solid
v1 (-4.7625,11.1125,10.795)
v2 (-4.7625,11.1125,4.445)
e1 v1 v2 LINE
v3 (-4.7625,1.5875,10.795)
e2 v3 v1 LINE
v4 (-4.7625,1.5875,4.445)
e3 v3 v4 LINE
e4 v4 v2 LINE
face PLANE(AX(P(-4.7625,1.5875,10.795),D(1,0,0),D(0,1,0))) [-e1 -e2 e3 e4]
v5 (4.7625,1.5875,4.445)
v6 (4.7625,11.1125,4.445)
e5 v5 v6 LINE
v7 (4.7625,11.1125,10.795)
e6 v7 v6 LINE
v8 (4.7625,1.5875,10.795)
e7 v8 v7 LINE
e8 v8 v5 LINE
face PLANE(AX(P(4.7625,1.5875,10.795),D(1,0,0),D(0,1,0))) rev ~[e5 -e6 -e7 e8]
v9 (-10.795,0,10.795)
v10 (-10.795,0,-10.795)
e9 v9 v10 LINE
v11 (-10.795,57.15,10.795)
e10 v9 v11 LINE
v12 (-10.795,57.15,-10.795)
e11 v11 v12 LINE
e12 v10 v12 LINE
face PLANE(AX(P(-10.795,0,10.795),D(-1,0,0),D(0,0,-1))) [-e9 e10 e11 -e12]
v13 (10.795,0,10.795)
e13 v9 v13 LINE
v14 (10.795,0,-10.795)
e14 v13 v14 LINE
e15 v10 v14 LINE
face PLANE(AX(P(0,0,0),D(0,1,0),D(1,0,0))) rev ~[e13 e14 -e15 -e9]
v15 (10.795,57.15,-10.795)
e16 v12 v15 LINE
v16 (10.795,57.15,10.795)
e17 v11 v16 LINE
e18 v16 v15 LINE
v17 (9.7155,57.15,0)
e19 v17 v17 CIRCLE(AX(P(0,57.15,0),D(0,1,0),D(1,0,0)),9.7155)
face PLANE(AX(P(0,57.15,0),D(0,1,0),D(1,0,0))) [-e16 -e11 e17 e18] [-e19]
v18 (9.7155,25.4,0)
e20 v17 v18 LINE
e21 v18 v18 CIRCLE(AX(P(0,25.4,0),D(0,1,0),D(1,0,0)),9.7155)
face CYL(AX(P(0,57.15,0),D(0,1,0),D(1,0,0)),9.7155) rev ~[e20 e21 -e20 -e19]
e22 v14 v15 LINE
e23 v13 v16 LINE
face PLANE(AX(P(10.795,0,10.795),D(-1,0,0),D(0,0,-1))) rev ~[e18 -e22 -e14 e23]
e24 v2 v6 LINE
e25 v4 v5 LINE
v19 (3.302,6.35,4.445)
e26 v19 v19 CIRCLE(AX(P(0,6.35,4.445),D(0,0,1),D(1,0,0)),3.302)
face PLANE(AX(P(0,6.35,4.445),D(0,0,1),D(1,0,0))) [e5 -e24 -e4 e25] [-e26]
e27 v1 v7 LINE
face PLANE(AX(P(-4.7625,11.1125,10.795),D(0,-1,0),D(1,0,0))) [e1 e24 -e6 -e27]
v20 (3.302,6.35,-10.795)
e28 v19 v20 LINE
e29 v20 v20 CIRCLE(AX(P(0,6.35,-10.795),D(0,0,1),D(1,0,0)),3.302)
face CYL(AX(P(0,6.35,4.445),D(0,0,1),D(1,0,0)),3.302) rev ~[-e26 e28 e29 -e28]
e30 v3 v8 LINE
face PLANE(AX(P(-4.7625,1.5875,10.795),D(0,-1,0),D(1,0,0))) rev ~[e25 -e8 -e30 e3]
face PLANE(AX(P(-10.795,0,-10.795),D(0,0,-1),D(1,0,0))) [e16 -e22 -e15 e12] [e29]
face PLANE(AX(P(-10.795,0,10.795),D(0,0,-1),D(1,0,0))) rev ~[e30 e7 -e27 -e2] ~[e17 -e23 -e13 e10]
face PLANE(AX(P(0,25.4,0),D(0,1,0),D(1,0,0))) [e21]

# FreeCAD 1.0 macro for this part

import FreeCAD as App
import Part
import Sketcher
from FreeCAD import Vector
Q = App.Units.Quantity

doc = App.newDocument("Part")
params = doc.addObject("Spreadsheet::Sheet", "Params")
for row, (alias, value) in enumerate([
    ("sketch1_width", "0.85 in"),
    ("pad1_length", "2.25 in"),
    ("sketch2_width", "0.375 in"),
    ("pocket1_length", "0.25 in"),
    ("sketch3_diameter", "0.26 in"),
    ("sketch4_diameter", "0.765 in"),
    ("pocket3_length", "1.25 in"),
], start=1):
    params.set(f"A{row}", alias)
    params.set(f"B{row}", "=" + value)
    params.setAlias(f"B{row}", alias)

body = doc.addObject("PartDesign::Body", "Body")

sketch1 = doc.addObject("Sketcher::SketchObject", "Sketch")
body.addObject(sketch1)
sketch1.AttachmentSupport = (doc.XZ_Plane, [""])
sketch1.MapMode = "FlatFace"
sketch1.addGeometry(Part.LineSegment(Vector(-10.795, -10.795, 0), Vector(-10.795, 10.795, 0)), False)
sketch1.addGeometry(Part.LineSegment(Vector(-10.795, 10.795, 0), Vector(10.795, 10.795, 0)), False)
sketch1.addGeometry(Part.LineSegment(Vector(10.795, 10.795, 0), Vector(10.795, -10.795, 0)), False)
sketch1.addGeometry(Part.LineSegment(Vector(10.795, -10.795, 0), Vector(-10.795, -10.795, 0)), False)
sketch1.addConstraint(Sketcher.Constraint("Coincident", 0, 2, 1, 1))
sketch1.addConstraint(Sketcher.Constraint("Coincident", 1, 2, 2, 1))
sketch1.addConstraint(Sketcher.Constraint("Coincident", 2, 2, 3, 1))
sketch1.addConstraint(Sketcher.Constraint("Coincident", 3, 2, 0, 1))
sketch1.addConstraint(Sketcher.Constraint("Vertical", 0))
sketch1.addConstraint(Sketcher.Constraint("Horizontal", 1))
sketch1.addConstraint(Sketcher.Constraint("Vertical", 2))
sketch1.addConstraint(Sketcher.Constraint("Horizontal", 3))
sketch1.addConstraint(Sketcher.Constraint("Symmetric", 0, 2, 2, 2, -1, 1))
sketch1.addConstraint(Sketcher.Constraint("Equal", 3, 0))
sketch1.addConstraint(Sketcher.Constraint("DistanceX", 1, 1, 1, 2, Q("0.85 in")))
sketch1.setExpression("Constraints[10]", "Params.sketch1_width")
pad1 = doc.addObject("PartDesign::Pad", "Pad")
body.addObject(pad1)
pad1.Profile = sketch1
pad1.setExpression("Length", "Params.pad1_length")
pad1.Reversed = True

sketch2 = doc.addObject("Sketcher::SketchObject", "Sketch001")
body.addObject(sketch2)
sketch2.AttachmentSupport = (doc.XY_Plane, [""])
sketch2.MapMode = "FlatFace"
sketch2.AttachmentOffset = App.Placement(Vector(0, 0, 0.425 * 25.4), App.Rotation())
sketch2.addGeometry(Part.LineSegment(Vector(-4.7625, 11.1125, 0), Vector(-4.7625, 1.5875, 0)), False)
sketch2.addGeometry(Part.LineSegment(Vector(-4.7625, 1.5875, 0), Vector(4.7625, 1.5875, 0)), False)
sketch2.addGeometry(Part.LineSegment(Vector(4.7625, 1.5875, 0), Vector(4.7625, 11.1125, 0)), False)
sketch2.addGeometry(Part.LineSegment(Vector(4.7625, 11.1125, 0), Vector(-4.7625, 11.1125, 0)), False)
sketch2.addConstraint(Sketcher.Constraint("Coincident", 0, 2, 1, 1))
sketch2.addConstraint(Sketcher.Constraint("Coincident", 1, 2, 2, 1))
sketch2.addConstraint(Sketcher.Constraint("Coincident", 2, 2, 3, 1))
sketch2.addConstraint(Sketcher.Constraint("Coincident", 3, 2, 0, 1))
sketch2.addConstraint(Sketcher.Constraint("Vertical", 0))
sketch2.addConstraint(Sketcher.Constraint("Horizontal", 1))
sketch2.addConstraint(Sketcher.Constraint("Vertical", 2))
sketch2.addConstraint(Sketcher.Constraint("Horizontal", 3))
sketch2.addConstraint(Sketcher.Constraint("Equal", 3, 0))
sketch2.addConstraint(Sketcher.Constraint("DistanceX", 1, 1, 1, 2, Q("0.375 in")))
sketch2.addConstraint(Sketcher.Constraint("DistanceX", 0, 2, -1, 1, Q("0.1875 in")))
sketch2.addConstraint(Sketcher.Constraint("DistanceY", -1, 1, 0, 2, Q("0.0625 in")))
sketch2.setExpression("Constraints[9]", "Params.sketch2_width")
pocket1 = doc.addObject("PartDesign::Pocket", "Pocket")
body.addObject(pocket1)
pocket1.Profile = sketch2
pocket1.setExpression("Length", "Params.pocket1_length")

sketch3 = doc.addObject("Sketcher::SketchObject", "Sketch002")
body.addObject(sketch3)
sketch3.AttachmentSupport = (doc.XY_Plane, [""])
sketch3.MapMode = "FlatFace"
sketch3.AttachmentOffset = App.Placement(Vector(0, 0, 0.175 * 25.4), App.Rotation())
sketch3.addGeometry(Part.Circle(Vector(0, 6.35, 0), Vector(0, 0, 1), 3.302), False)
sketch3.addConstraint(Sketcher.Constraint("PointOnObject", 0, 3, -2))
sketch3.addConstraint(Sketcher.Constraint("Diameter", 0, Q("0.26 in")))
sketch3.addConstraint(Sketcher.Constraint("DistanceY", -1, 1, 0, 3, Q("0.25 in")))
sketch3.setExpression("Constraints[1]", "Params.sketch3_diameter")
pocket2 = doc.addObject("PartDesign::Pocket", "Pocket001")
body.addObject(pocket2)
pocket2.Profile = sketch3
pocket2.Type = "ThroughAll"

sketch4 = doc.addObject("Sketcher::SketchObject", "Sketch003")
body.addObject(sketch4)
sketch4.AttachmentSupport = (doc.XZ_Plane, [""])
sketch4.MapMode = "FlatFace"
sketch4.AttachmentOffset = App.Placement(Vector(0, 0, -2.25 * 25.4), App.Rotation())
sketch4.addGeometry(Part.Circle(Vector(0, 0, 0), Vector(0, 0, 1), 9.7155), False)
sketch4.addConstraint(Sketcher.Constraint("Coincident", 0, 3, -1, 1))
sketch4.addConstraint(Sketcher.Constraint("Diameter", 0, Q("0.765 in")))
sketch4.setExpression("Constraints[1]", "Params.sketch4_diameter")
pocket3 = doc.addObject("PartDesign::Pocket", "Pocket002")
body.addObject(pocket3)
pocket3.Profile = sketch4
pocket3.setExpression("Length", "Params.pocket3_length")
pocket3.Reversed = True

doc.recompute()
